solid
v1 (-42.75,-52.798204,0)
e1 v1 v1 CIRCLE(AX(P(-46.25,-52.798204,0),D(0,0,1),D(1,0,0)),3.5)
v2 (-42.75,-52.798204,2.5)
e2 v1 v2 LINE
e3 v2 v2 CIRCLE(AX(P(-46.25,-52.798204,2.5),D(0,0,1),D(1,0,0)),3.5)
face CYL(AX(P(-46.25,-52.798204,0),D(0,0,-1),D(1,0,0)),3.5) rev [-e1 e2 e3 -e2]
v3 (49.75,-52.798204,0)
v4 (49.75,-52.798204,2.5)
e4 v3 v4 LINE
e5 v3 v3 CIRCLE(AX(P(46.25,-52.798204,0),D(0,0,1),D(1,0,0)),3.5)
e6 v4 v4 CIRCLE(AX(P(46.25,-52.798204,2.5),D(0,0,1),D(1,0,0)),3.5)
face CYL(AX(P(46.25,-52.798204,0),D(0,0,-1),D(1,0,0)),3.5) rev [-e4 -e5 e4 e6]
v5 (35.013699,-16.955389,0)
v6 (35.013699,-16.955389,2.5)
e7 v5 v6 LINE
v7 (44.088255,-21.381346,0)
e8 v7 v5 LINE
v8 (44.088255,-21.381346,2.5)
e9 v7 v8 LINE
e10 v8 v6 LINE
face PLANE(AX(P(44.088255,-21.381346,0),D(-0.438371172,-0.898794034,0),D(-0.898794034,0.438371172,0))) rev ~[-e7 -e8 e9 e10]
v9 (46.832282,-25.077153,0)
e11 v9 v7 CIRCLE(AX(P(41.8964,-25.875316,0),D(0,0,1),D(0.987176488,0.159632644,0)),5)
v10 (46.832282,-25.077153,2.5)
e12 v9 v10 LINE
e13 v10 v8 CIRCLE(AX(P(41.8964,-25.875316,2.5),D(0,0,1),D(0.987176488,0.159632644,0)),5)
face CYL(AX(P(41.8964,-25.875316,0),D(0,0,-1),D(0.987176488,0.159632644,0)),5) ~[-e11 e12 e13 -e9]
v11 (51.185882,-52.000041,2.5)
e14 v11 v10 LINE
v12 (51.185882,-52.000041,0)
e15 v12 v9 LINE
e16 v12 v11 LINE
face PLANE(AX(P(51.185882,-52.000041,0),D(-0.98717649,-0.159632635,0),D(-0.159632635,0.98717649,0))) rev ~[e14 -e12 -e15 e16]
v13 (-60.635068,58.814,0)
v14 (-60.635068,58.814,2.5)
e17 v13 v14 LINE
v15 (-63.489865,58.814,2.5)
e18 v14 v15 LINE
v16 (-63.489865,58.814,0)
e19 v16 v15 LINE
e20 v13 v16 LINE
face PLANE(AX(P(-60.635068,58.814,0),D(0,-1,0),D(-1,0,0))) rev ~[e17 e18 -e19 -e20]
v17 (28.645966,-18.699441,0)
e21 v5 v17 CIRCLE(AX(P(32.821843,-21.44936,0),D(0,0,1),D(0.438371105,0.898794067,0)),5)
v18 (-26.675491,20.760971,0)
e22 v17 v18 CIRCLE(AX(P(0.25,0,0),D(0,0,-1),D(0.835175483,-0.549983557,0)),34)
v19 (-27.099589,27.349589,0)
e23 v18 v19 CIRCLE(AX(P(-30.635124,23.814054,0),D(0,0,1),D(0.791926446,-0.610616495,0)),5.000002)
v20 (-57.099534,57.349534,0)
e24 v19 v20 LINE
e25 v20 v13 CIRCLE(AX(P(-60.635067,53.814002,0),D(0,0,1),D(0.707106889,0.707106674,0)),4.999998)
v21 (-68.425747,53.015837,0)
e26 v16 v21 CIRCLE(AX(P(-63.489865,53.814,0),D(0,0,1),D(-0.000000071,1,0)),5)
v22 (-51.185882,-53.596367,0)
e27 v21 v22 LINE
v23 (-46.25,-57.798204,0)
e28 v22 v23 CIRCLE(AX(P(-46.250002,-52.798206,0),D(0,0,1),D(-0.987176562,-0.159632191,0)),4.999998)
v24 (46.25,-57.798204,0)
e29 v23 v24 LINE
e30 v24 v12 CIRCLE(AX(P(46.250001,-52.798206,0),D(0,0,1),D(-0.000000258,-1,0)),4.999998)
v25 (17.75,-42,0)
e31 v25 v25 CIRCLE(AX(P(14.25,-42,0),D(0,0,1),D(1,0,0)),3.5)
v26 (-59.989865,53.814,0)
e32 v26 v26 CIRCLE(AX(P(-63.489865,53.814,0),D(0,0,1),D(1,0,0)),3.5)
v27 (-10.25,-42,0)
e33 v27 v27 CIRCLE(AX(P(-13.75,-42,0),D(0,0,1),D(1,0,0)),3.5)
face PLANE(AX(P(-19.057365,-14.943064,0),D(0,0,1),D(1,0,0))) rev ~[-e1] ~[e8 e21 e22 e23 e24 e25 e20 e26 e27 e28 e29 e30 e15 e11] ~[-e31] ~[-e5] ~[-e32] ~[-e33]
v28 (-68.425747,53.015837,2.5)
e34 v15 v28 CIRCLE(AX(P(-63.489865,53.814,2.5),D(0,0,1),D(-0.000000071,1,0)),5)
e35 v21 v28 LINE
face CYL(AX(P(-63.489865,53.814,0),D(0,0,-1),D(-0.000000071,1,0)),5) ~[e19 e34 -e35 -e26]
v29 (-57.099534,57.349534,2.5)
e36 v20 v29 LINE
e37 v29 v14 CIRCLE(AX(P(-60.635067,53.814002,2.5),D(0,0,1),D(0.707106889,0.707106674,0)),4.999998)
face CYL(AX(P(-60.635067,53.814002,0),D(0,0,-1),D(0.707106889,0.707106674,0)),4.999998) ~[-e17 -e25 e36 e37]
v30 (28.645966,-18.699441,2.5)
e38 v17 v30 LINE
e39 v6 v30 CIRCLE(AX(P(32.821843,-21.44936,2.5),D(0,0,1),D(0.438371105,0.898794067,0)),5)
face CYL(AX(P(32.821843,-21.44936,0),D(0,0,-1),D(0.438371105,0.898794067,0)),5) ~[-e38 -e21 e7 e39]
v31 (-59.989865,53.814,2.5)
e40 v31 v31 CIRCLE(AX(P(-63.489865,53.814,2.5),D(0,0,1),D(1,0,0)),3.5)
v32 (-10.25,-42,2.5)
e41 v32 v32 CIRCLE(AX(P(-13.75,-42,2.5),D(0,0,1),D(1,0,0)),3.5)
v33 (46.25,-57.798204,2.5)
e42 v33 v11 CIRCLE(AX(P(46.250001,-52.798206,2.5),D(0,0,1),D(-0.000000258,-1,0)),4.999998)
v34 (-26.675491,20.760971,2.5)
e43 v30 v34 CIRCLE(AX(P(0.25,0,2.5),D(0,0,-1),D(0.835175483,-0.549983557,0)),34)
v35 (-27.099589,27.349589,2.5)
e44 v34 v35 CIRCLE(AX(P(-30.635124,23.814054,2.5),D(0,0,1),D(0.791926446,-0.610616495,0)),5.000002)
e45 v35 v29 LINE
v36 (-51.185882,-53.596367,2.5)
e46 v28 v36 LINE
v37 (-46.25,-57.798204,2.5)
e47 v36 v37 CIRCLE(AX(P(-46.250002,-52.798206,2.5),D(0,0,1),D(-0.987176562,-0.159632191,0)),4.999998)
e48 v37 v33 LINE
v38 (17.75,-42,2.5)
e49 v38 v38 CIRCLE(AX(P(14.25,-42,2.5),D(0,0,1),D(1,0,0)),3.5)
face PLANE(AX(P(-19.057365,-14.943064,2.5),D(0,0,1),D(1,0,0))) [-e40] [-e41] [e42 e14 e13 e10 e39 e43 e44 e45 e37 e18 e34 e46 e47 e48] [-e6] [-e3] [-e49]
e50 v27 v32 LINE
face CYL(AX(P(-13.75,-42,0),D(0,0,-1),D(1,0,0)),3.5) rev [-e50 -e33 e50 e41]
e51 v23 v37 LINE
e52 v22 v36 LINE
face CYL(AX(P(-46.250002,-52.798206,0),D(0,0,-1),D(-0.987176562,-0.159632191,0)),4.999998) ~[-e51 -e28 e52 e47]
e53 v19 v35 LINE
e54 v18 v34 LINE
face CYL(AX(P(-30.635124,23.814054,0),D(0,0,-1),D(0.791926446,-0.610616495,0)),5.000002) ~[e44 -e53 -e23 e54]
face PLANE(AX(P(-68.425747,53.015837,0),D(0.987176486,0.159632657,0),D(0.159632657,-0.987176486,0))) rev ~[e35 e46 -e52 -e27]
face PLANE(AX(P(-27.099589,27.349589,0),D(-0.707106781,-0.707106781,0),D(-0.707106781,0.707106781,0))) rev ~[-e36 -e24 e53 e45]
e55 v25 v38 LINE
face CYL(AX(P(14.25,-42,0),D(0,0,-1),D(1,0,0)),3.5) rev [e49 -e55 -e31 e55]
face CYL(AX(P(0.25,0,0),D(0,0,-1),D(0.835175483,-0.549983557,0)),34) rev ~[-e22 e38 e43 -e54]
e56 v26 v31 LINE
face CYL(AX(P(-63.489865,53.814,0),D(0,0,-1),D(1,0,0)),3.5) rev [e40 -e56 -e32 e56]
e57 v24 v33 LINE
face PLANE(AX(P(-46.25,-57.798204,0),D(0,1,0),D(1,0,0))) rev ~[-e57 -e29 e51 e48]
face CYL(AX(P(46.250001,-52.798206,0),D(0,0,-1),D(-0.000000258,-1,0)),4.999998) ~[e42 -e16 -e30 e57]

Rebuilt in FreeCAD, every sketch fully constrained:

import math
import FreeCAD as App
import Part
import Sketcher
from FreeCAD import Vector
Q = App.Units.Quantity

doc = App.newDocument("Part")
body = doc.addObject("PartDesign::Body", "Body")

# Sketch on XY plane
sketch1 = body.newObject("Sketcher::SketchObject", "Sketch")
sketch1.AttachmentSupport = (doc.getObject("XY_Plane"), [""])
sketch1.MapMode = "FlatFace"
sketch1.addGeometry(Part.LineSegment(Vector(-60.6, 58.8, 0), Vector(-63.5, 58.8, 0)), False)
sketch1.addGeometry(Part.ArcOfCircle(Part.Circle(Vector(-63.5, 53.8, 0), Vector(0, 0, 1), 5), math.radians(90), math.radians(189)), False)
sketch1.addGeometry(Part.LineSegment(Vector(-68.4, 53, 0), Vector(-51.2, -53.6, 0)), False)
sketch1.addGeometry(Part.ArcOfCircle(Part.Circle(Vector(-46.3, -52.8, 0), Vector(0, 0, 1), 5), math.radians(-171), math.radians(-90)), False)
sketch1.addGeometry(Part.LineSegment(Vector(-46.2, -57.8, 0), Vector(46.2, -57.8, 0)), False)
sketch1.addGeometry(Part.ArcOfCircle(Part.Circle(Vector(46.3, -52.8, 0), Vector(0, 0, 1), 5), math.radians(-90), math.radians(9)), False)
sketch1.addGeometry(Part.LineSegment(Vector(51.2, -52, 0), Vector(46.8, -25.1, 0)), False)
sketch1.addGeometry(Part.ArcOfCircle(Part.Circle(Vector(41.9, -25.9, 0), Vector(0, 0, 1), 5), math.radians(9), math.radians(64)), False)
sketch1.addGeometry(Part.LineSegment(Vector(44.1, -21.4, 0), Vector(35, -17, 0)), False)
sketch1.addGeometry(Part.ArcOfCircle(Part.Circle(Vector(32.8, -21.4, 0), Vector(0, 0, 1), 5), math.radians(64), math.radians(147)), False)
sketch1.addGeometry(Part.ArcOfCircle(Part.Circle(Vector(0.2, 0, 0), Vector(0, 0, 1), 34), math.radians(142), math.radians(327)), False)
sketch1.addGeometry(Part.ArcOfCircle(Part.Circle(Vector(-30.6, 23.8, 0), Vector(0, 0, 1), 5), math.radians(-38), math.radians(45)), False)
sketch1.addGeometry(Part.LineSegment(Vector(-27.1, 27.3, 0), Vector(-57.1, 57.3, 0)), False)
sketch1.addGeometry(Part.ArcOfCircle(Part.Circle(Vector(-60.6, 53.8, 0), Vector(0, 0, 1), 5), math.radians(45), math.radians(90)), False)
sketch1.addGeometry(Part.Circle(Vector(-46.2, -52.8, 0), Vector(0, 0, 1), 3.5), False)
sketch1.addGeometry(Part.Circle(Vector(-13.8, -42, 0), Vector(0, 0, 1), 3.5), False)
sketch1.addGeometry(Part.Circle(Vector(14.2, -42, 0), Vector(0, 0, 1), 3.5), False)
sketch1.addGeometry(Part.Circle(Vector(46.2, -52.8, 0), Vector(0, 0, 1), 3.5), False)
sketch1.addGeometry(Part.Circle(Vector(-63.5, 53.8, 0), Vector(0, 0, 1), 3.5), False)
sketch1.addConstraint(Sketcher.Constraint("Tangent", 0, 2, 1, 1))
sketch1.addConstraint(Sketcher.Constraint("Tangent", 1, 2, 2, 1))
sketch1.addConstraint(Sketcher.Constraint("Tangent", 2, 2, 3, 1))
sketch1.addConstraint(Sketcher.Constraint("Tangent", 3, 2, 4, 1))
sketch1.addConstraint(Sketcher.Constraint("Tangent", 4, 2, 5, 1))
sketch1.addConstraint(Sketcher.Constraint("Tangent", 5, 2, 6, 1))
sketch1.addConstraint(Sketcher.Constraint("Tangent", 6, 2, 7, 1))
sketch1.addConstraint(Sketcher.Constraint("Tangent", 7, 2, 8, 1))
sketch1.addConstraint(Sketcher.Constraint("Tangent", 8, 2, 9, 1))
sketch1.addConstraint(Sketcher.Constraint("Tangent", 9, 2, 10, 2))
sketch1.addConstraint(Sketcher.Constraint("Tangent", 10, 1, 11, 1))
sketch1.addConstraint(Sketcher.Constraint("Tangent", 11, 2, 12, 1))
sketch1.addConstraint(Sketcher.Constraint("Tangent", 12, 2, 13, 1))
sketch1.addConstraint(Sketcher.Constraint("Tangent", 13, 2, 0, 1))
sketch1.addConstraint(Sketcher.Constraint("Horizontal", 0))
sketch1.addConstraint(Sketcher.Constraint("Horizontal", 4))
sketch1.addConstraint(Sketcher.Constraint("Coincident", 14, 3, 3, 3))
sketch1.addConstraint(Sketcher.Constraint("Coincident", 17, 3, 5, 3))
sketch1.addConstraint(Sketcher.Constraint("Coincident", 18, 3, 1, 3))
sketch1.addConstraint(Sketcher.Constraint("Equal", 3, 5))
sketch1.addConstraint(Sketcher.Constraint("Equal", 5, 7))
sketch1.addConstraint(Sketcher.Constraint("Equal", 7, 9))
sketch1.addConstraint(Sketcher.Constraint("Equal", 9, 11))
sketch1.addConstraint(Sketcher.Constraint("Equal", 7, 13))
sketch1.addConstraint(Sketcher.Constraint("Equal", 14, 15))
sketch1.addConstraint(Sketcher.Constraint("Equal", 15, 16))
sketch1.addConstraint(Sketcher.Constraint("Equal", 16, 17))
sketch1.addConstraint(Sketcher.Constraint("Equal", 17, 18))
sketch1.addConstraint(Sketcher.Constraint("PointOnObject", 10, 3, -1))
sketch1.addConstraint(Sketcher.Constraint("Parallel", 2, 6))
sketch1.addConstraint(Sketcher.Constraint("Horizontal", 15, 3, 16, 3))
sketch1.addConstraint(Sketcher.Constraint("Diameter", 14, Q("7 mm")))
sketch1.addConstraint(Sketcher.Constraint("Radius", 1, Q("5 mm")))
sketch1.addConstraint(Sketcher.Constraint("Radius", 5, Q("4.999998 mm")))
sketch1.addConstraint(Sketcher.Constraint("Radius", 10, Q("34 mm")))
sketch1.addConstraint(Sketcher.Constraint("Angle", 8, Q("153.999998 deg")))
sketch1.addConstraint(Sketcher.Constraint("Angle", 12, Q("135 deg")))
sketch1.addConstraint(Sketcher.Constraint("DistanceX", 4, 1, 4, 2, Q("92.5 mm")))
sketch1.addConstraint(Sketcher.Constraint("DistanceY", 15, 3, -1, 1, Q("42 mm")))
sketch1.addConstraint(Sketcher.Constraint("DistanceX", 10, 3, 5, 3, Q("46.000001 mm")))
sketch1.addConstraint(Sketcher.Constraint("DistanceX", 15, 3, 10, 3, Q("14 mm")))
sketch1.addConstraint(Sketcher.Constraint("DistanceX", 15, 3, 16, 3, Q("28 mm")))
sketch1.addConstraint(Sketcher.Constraint("DistanceX", 3, 3, -1, 1, Q("46.250002 mm")))
sketch1.addConstraint(Sketcher.Constraint("DistanceY", -1, 1, 1, 3, Q("53.814 mm")))
sketch1.addConstraint(Sketcher.Constraint("DistanceX", -1, 1, 7, 3, Q("41.8964 mm")))
sketch1.addConstraint(Sketcher.Constraint("DistanceX", -1, 1, 8, 2, Q("35.013699 mm")))
sketch1.addConstraint(Sketcher.Constraint("DistanceX", 18, 3, 13, 3, Q("2.854798 mm")))
sketch1.addConstraint(Sketcher.Constraint("Distance", 6, Q("27.272619 mm")))
pad1 = body.newObject("PartDesign::Pad", "Pad")
pad1.Profile = sketch1
pad1.Length = 2.5

doc.recompute()
